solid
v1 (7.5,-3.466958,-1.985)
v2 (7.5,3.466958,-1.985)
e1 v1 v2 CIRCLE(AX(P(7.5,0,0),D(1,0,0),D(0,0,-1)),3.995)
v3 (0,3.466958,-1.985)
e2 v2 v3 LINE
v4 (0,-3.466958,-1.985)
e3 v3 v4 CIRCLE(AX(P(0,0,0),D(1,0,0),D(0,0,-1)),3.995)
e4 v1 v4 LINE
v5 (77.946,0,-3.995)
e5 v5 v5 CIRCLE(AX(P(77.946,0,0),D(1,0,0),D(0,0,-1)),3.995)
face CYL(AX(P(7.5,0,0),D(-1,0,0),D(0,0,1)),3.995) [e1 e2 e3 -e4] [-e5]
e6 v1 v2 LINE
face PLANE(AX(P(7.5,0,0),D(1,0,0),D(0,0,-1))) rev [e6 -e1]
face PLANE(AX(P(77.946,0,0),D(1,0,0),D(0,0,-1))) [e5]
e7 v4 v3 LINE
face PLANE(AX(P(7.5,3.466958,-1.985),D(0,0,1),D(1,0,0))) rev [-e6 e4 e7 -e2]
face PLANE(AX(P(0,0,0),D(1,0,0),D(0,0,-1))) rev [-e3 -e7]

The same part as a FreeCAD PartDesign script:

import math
import FreeCAD as App
import Part
import Sketcher

V = App.Vector
Q = App.Units.Quantity

doc = App.newDocument("Part")
body = doc.addObject("PartDesign::Body", "Body")

sketch1 = body.newObject("Sketcher::SketchObject", "Sketch")
sketch1.AttachmentSupport = (doc.getObject("YZ_Plane"), [""])
sketch1.MapMode = "FlatFace"
sketch1.addGeometry(Part.LineSegment(V(-3.5, -2, 0), V(3.5, -2, 0)), False)
sketch1.addGeometry(Part.ArcOfCircle(Part.Circle(V(0, 0, 0), V(0, 0, 1), 4), math.radians(-30), math.radians(210)), False)
sketch1.addConstraint(Sketcher.Constraint("Coincident", 0, 1, 1, 2))
sketch1.addConstraint(Sketcher.Constraint("Coincident", 1, 1, 0, 2))
sketch1.addConstraint(Sketcher.Constraint("Horizontal", 0))
sketch1.addConstraint(Sketcher.Constraint("Coincident", 1, 3, -1, 1))
sketch1.addConstraint(Sketcher.Constraint("Radius", 1, Q("3.995 mm")))
sketch1.addConstraint(Sketcher.Constraint("DistanceY", 0, 1, -1, 1, Q("1.985 mm")))
pad1 = body.newObject("PartDesign::Pad", "Pad")
pad1.Profile = sketch1
pad1.Length = 7.5

sketch2 = body.newObject("Sketcher::SketchObject", "Sketch001")
sketch2.AttachmentSupport = (doc.getObject("YZ_Plane"), [""])
sketch2.MapMode = "FlatFace"
sketch2.AttachmentOffset = App.Placement(V(0, 0, 7.5), App.Rotation())
sketch2.addGeometry(Part.Circle(V(0, 0, 0), V(0, 0, 1), 4), False)
sketch2.addConstraint(Sketcher.Constraint("Coincident", 0, 3, -1, 1))
sketch2.addConstraint(Sketcher.Constraint("Diameter", 0, Q("7.99 mm")))
pad2 = body.newObject("PartDesign::Pad", "Pad001")
pad2.Profile = sketch2
pad2.Length = 70.446

doc.recompute()
